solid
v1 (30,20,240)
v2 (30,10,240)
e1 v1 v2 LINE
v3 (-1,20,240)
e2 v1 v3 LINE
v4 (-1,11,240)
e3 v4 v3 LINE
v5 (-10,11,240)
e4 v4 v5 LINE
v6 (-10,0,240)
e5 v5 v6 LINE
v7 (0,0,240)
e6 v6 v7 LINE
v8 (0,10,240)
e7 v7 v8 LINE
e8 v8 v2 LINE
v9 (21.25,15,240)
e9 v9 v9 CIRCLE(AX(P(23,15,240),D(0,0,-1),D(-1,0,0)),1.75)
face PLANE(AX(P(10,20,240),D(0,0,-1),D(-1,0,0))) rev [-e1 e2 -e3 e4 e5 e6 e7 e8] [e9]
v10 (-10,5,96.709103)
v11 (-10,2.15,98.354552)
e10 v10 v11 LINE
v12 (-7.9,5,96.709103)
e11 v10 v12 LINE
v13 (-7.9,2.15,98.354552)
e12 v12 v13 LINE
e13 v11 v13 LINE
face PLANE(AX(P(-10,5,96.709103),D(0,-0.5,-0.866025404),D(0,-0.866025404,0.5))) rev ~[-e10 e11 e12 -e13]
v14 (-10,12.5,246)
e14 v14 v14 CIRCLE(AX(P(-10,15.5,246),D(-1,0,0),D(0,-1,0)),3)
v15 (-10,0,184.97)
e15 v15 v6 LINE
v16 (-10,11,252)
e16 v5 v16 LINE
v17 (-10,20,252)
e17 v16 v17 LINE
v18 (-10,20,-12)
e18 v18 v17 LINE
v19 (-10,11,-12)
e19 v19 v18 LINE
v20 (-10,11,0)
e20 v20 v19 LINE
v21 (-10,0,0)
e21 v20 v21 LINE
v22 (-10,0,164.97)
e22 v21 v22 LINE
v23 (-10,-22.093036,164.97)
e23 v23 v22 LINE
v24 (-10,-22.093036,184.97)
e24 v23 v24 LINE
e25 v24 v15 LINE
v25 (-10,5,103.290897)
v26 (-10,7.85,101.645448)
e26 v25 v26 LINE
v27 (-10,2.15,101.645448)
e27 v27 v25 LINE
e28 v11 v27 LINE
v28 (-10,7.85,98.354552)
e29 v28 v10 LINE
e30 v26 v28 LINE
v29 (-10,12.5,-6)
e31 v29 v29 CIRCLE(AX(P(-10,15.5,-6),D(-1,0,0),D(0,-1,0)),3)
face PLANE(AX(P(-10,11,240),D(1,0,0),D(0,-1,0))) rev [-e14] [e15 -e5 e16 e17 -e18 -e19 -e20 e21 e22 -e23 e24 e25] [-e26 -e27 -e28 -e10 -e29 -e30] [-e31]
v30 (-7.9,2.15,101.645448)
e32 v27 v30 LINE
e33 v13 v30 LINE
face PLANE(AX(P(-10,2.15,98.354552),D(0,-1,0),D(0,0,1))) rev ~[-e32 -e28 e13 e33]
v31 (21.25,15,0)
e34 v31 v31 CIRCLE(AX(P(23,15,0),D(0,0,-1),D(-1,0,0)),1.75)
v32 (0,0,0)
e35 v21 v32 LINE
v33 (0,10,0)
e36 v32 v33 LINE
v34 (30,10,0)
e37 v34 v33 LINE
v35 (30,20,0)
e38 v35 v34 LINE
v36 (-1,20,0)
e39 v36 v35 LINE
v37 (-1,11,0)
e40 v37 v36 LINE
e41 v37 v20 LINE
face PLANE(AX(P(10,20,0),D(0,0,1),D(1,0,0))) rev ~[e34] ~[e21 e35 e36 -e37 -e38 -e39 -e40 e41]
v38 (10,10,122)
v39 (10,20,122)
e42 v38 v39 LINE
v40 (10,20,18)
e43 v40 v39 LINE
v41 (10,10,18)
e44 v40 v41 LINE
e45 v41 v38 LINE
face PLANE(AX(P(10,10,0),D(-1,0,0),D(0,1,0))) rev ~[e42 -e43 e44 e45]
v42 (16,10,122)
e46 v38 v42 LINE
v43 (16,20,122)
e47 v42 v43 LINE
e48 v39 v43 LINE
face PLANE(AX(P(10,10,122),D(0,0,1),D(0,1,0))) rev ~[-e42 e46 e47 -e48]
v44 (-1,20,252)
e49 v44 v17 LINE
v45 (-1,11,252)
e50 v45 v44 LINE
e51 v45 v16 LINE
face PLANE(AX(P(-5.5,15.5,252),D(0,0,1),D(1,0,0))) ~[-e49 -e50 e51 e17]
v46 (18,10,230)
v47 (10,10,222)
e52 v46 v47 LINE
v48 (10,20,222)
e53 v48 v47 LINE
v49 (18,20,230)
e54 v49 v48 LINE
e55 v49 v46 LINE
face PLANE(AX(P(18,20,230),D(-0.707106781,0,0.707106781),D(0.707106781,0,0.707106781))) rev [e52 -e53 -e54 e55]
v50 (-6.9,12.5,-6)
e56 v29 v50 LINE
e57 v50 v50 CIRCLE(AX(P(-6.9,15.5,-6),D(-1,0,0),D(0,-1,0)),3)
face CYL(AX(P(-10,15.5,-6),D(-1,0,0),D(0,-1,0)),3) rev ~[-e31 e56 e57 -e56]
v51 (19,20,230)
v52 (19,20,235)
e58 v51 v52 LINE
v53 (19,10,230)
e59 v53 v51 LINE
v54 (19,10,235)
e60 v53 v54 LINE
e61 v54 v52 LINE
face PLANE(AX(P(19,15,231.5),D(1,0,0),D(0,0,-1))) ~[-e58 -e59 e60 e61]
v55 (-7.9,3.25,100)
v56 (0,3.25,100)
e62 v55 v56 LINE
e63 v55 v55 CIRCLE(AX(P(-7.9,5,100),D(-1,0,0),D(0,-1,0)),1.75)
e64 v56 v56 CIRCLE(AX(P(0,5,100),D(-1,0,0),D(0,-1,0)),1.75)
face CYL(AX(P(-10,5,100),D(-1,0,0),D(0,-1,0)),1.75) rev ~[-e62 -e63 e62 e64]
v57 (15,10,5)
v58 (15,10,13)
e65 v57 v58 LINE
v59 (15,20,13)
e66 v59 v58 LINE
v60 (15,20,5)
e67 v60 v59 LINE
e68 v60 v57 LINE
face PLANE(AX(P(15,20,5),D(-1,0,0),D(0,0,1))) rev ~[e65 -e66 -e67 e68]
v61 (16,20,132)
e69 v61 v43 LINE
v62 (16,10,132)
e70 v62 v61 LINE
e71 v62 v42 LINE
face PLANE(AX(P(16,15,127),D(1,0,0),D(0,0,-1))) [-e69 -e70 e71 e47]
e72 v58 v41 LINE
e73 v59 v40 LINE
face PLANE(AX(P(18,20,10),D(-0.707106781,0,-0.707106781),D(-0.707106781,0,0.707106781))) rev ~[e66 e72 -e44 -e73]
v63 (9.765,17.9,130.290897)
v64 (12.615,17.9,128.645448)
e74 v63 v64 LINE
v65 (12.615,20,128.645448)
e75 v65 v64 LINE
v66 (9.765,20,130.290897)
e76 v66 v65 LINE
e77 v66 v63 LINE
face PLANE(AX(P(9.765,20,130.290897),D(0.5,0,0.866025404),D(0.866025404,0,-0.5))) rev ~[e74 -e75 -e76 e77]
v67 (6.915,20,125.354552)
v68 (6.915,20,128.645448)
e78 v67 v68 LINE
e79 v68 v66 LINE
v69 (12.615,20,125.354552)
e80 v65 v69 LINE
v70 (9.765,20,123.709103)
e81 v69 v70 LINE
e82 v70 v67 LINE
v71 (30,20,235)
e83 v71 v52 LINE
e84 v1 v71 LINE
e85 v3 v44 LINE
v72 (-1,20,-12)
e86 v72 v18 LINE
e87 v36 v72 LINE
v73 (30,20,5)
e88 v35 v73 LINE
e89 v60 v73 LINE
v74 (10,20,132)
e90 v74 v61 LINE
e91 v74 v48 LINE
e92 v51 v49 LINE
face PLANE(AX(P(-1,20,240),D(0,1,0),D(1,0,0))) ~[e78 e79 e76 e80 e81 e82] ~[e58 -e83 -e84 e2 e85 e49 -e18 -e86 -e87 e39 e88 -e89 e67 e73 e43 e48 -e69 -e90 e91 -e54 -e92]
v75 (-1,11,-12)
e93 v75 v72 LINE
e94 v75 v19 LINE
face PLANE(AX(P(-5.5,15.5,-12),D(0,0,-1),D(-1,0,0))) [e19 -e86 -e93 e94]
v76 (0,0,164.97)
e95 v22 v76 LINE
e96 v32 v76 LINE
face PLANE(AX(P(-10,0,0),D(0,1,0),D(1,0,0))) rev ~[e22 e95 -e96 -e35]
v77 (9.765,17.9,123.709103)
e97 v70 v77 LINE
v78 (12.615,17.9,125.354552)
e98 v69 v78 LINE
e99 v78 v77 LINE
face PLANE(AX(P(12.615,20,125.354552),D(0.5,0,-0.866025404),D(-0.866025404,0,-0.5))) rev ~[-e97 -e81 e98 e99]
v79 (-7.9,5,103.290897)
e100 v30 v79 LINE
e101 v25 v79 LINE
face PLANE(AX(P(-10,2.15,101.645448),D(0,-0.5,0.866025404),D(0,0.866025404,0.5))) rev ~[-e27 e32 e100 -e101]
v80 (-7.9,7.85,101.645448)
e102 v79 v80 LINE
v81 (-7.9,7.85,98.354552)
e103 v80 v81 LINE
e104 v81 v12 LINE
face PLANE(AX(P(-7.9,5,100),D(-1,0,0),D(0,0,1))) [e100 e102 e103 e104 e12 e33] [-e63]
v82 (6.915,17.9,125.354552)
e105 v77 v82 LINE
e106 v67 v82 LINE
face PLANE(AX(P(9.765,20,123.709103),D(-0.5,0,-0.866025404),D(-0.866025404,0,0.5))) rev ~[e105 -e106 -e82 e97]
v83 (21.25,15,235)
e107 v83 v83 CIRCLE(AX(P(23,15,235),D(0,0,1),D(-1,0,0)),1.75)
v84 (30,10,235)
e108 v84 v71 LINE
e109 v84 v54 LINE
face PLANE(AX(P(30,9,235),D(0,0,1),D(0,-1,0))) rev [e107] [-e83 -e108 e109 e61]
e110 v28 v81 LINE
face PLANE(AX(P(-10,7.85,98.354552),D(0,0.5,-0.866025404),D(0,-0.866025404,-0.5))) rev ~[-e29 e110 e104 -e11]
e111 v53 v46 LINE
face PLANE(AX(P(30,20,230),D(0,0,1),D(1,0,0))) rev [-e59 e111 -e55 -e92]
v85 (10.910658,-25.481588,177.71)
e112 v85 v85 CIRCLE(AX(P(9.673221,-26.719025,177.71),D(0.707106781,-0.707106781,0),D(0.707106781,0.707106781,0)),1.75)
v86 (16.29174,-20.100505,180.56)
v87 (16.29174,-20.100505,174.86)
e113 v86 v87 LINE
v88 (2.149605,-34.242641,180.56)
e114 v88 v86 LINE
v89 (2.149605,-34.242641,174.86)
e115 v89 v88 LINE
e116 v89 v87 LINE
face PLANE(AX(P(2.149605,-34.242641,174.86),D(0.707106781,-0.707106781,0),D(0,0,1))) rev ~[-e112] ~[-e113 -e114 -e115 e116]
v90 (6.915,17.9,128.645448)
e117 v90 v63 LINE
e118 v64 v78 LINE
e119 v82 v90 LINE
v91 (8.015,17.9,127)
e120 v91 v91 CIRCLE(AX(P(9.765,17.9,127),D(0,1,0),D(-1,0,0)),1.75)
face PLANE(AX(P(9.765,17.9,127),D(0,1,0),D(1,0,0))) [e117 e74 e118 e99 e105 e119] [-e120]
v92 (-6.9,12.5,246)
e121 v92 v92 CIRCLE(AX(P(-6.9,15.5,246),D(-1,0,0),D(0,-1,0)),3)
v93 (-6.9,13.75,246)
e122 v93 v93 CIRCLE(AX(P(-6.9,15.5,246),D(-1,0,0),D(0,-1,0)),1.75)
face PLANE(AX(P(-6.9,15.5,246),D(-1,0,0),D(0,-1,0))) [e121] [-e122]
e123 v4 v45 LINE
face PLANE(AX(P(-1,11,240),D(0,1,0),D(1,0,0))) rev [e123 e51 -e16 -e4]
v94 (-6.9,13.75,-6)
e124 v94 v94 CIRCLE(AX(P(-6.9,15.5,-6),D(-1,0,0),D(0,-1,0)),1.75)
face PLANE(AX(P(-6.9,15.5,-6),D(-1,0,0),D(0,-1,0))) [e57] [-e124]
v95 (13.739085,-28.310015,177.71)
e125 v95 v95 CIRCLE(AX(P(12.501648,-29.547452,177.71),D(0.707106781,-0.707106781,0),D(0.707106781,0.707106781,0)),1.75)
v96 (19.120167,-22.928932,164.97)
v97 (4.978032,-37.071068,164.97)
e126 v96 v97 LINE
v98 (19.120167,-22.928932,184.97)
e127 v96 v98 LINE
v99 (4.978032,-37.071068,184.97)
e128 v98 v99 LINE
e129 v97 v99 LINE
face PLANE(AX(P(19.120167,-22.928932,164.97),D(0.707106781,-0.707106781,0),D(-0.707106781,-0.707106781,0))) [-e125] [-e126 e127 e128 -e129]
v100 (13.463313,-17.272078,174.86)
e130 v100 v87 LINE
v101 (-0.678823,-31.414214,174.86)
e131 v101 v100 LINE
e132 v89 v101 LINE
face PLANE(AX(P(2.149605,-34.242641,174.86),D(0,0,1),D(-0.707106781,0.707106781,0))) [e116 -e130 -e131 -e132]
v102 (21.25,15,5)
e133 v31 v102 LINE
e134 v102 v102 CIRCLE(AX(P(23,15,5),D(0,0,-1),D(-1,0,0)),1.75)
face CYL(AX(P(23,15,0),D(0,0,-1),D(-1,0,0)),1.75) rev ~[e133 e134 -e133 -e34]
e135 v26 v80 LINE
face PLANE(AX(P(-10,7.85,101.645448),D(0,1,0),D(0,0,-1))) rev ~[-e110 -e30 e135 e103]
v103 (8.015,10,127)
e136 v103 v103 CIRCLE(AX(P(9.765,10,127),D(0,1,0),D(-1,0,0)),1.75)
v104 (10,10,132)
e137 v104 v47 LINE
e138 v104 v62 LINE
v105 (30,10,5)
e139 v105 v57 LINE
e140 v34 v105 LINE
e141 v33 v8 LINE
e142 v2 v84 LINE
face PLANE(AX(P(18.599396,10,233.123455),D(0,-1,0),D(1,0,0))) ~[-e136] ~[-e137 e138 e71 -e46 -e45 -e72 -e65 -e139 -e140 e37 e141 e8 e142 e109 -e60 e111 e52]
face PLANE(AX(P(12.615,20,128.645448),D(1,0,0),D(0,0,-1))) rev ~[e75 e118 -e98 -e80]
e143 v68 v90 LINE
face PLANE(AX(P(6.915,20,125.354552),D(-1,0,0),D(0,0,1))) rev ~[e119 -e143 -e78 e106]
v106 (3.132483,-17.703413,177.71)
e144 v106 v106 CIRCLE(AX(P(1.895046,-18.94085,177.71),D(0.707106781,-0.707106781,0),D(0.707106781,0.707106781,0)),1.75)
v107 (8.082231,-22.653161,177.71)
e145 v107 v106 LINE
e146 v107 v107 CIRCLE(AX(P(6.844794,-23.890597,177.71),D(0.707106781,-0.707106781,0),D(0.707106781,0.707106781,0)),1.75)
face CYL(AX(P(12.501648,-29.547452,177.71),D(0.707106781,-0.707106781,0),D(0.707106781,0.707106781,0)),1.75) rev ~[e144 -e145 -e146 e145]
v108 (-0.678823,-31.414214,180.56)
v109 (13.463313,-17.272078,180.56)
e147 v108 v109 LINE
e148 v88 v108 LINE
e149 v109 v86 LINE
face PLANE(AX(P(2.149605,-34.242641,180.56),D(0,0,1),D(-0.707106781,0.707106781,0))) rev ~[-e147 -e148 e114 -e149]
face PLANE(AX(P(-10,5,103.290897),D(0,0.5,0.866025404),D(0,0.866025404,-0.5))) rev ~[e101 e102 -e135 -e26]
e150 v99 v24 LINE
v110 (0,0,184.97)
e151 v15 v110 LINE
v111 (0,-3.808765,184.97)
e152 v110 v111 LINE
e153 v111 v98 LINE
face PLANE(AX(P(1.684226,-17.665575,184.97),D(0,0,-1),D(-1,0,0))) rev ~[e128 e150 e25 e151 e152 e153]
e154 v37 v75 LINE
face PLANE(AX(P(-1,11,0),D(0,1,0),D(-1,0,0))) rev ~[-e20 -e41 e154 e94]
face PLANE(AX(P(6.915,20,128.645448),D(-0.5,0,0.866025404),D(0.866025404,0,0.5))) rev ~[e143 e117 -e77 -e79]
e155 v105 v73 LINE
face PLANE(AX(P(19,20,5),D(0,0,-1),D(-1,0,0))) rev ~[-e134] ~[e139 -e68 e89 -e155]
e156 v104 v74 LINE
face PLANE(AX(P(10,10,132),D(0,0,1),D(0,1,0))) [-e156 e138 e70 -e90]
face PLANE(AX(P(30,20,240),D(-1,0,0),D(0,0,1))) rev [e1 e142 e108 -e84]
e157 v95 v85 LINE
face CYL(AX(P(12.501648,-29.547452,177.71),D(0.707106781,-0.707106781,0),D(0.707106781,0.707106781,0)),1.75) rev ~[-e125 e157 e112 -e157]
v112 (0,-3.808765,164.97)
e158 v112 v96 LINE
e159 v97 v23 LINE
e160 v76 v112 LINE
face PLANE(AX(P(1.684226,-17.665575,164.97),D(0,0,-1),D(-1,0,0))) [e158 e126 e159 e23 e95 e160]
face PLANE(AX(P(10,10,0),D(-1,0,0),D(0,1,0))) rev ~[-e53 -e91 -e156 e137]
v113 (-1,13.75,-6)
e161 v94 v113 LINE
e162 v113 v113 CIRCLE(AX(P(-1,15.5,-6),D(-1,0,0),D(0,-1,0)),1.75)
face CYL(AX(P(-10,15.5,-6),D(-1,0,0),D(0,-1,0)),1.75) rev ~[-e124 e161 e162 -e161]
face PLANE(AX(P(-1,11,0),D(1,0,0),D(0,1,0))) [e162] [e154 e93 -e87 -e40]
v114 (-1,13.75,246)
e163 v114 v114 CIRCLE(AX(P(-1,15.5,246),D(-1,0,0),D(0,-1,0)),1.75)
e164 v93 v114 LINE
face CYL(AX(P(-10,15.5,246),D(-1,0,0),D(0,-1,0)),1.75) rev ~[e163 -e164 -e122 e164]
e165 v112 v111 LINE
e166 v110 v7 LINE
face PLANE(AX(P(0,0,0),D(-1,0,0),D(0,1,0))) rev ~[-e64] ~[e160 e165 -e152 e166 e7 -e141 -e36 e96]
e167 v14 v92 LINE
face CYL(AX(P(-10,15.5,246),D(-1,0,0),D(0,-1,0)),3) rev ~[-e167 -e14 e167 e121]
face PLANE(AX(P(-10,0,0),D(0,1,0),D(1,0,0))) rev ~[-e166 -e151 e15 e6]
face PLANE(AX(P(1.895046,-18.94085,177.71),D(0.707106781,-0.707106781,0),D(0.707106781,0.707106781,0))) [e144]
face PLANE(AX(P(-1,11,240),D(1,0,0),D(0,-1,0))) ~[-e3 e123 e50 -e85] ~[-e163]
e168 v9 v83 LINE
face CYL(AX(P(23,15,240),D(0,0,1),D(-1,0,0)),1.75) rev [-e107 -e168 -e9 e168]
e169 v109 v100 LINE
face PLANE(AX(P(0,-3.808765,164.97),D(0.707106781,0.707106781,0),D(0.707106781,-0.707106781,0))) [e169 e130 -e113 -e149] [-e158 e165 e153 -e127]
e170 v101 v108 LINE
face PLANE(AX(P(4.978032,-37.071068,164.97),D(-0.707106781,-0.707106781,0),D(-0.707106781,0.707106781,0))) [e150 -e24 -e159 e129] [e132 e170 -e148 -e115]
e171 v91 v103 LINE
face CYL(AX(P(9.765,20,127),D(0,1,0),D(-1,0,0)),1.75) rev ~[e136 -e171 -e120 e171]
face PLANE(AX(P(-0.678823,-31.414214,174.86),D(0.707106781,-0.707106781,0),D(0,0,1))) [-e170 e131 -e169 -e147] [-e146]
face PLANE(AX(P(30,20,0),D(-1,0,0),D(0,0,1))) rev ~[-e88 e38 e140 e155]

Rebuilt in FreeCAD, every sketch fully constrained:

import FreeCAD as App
import Part
import Sketcher
Q = App.Units.Quantity

doc = App.newDocument("Part")
body = doc.addObject("PartDesign::Body", "Body")

# Sketch on XY plane
sketch1 = body.newObject("Sketcher::SketchObject", "Sketch")
sketch1.AttachmentSupport = (doc.getObject("XY_Plane"), [""])
sketch1.MapMode = "FlatFace"
sketch1.addGeometry(Part.LineSegment(App.Vector(-10, 0, 0), App.Vector(0, 0, 0)), False)
sketch1.addGeometry(Part.LineSegment(App.Vector(0, 0, 0), App.Vector(0, 10, 0)), False)
sketch1.addGeometry(Part.LineSegment(App.Vector(0, 10, 0), App.Vector(10, 10, 0)), False)
sketch1.addGeometry(Part.LineSegment(App.Vector(10, 10, 0), App.Vector(10, 20, 0)), False)
sketch1.addGeometry(Part.LineSegment(App.Vector(10, 20, 0), App.Vector(-10, 20, 0)), False)
sketch1.addGeometry(Part.LineSegment(App.Vector(-10, 20, 0), App.Vector(-10, 0, 0)), False)
sketch1.addConstraint(Sketcher.Constraint("Coincident", 0, 2, 1, 1))
sketch1.addConstraint(Sketcher.Constraint("Coincident", 1, 2, 2, 1))
sketch1.addConstraint(Sketcher.Constraint("Coincident", 2, 2, 3, 1))
sketch1.addConstraint(Sketcher.Constraint("Coincident", 3, 2, 4, 1))
sketch1.addConstraint(Sketcher.Constraint("Coincident", 4, 2, 5, 1))
sketch1.addConstraint(Sketcher.Constraint("Coincident", 5, 2, 0, 1))
sketch1.addConstraint(Sketcher.Constraint("Horizontal", 0))
sketch1.addConstraint(Sketcher.Constraint("Vertical", 1))
sketch1.addConstraint(Sketcher.Constraint("Horizontal", 2))
sketch1.addConstraint(Sketcher.Constraint("Vertical", 3))
sketch1.addConstraint(Sketcher.Constraint("Horizontal", 4))
sketch1.addConstraint(Sketcher.Constraint("Vertical", 5))
sketch1.addConstraint(Sketcher.Constraint("Coincident", 0, 2, -1, 1))
sketch1.addConstraint(Sketcher.Constraint("Equal", 0, 2))
sketch1.addConstraint(Sketcher.Constraint("Equal", 2, 1))
sketch1.addConstraint(Sketcher.Constraint("Equal", 1, 3))
sketch1.addConstraint(Sketcher.Constraint("DistanceX", 0, 1, 0, 2, 10.0))
pad1 = body.newObject("PartDesign::Pad", "Pad")
pad1.Profile = sketch1
pad1.Length = 240

# Sketch on XZ plane
sketch2 = body.newObject("Sketcher::SketchObject", "Sketch001")
sketch2.AttachmentSupport = (doc.getObject("XZ_Plane"), [""])
sketch2.MapMode = "FlatFace"
sketch2.AttachmentOffset = App.Placement(App.Vector(0, 0, -20), App.Rotation())
sketch2.addGeometry(Part.LineSegment(App.Vector(30, 0, 0), App.Vector(10, 0, 0)), False)
sketch2.addGeometry(Part.LineSegment(App.Vector(10, 0, 0), App.Vector(10, 18, 0)), False)
sketch2.addGeometry(Part.LineSegment(App.Vector(10, 18, 0), App.Vector(18, 10, 0)), False)
sketch2.addGeometry(Part.LineSegment(App.Vector(18, 10, 0), App.Vector(30, 10, 0)), False)
sketch2.addGeometry(Part.LineSegment(App.Vector(30, 10, 0), App.Vector(30, 0, 0)), False)
sketch2.addConstraint(Sketcher.Constraint("Coincident", 0, 2, 1, 1))
sketch2.addConstraint(Sketcher.Constraint("Coincident", 1, 2, 2, 1))
sketch2.addConstraint(Sketcher.Constraint("Coincident", 2, 2, 3, 1))
sketch2.addConstraint(Sketcher.Constraint("Coincident", 3, 2, 4, 1))
sketch2.addConstraint(Sketcher.Constraint("Coincident", 4, 2, 0, 1))
sketch2.addConstraint(Sketcher.Constraint("Horizontal", 0))
sketch2.addConstraint(Sketcher.Constraint("Vertical", 1))
sketch2.addConstraint(Sketcher.Constraint("Horizontal", 3))
sketch2.addConstraint(Sketcher.Constraint("Vertical", 4))
sketch2.addConstraint(Sketcher.Constraint("PointOnObject", 0, 2, -1))
sketch2.addConstraint(Sketcher.Constraint("DistanceX", 0, 2, 0, 1, 20.0))
sketch2.addConstraint(Sketcher.Constraint("DistanceX", 3, 1, 3, 2, 12.0))
sketch2.addConstraint(Sketcher.Constraint("DistanceY", 1, 1, 1, 2, 18.0))
sketch2.addConstraint(Sketcher.Constraint("DistanceY", 4, 2, 4, 1, 10.0))
sketch2.addConstraint(Sketcher.Constraint("DistanceX", -1, 1, 0, 2, 10.0))
pad2 = body.newObject("PartDesign::Pad", "Pad001")
pad2.Profile = sketch2
pad2.Length = 10

# Sketch on XY plane
sketch3 = body.newObject("Sketcher::SketchObject", "Sketch002")
sketch3.AttachmentSupport = (doc.getObject("XY_Plane"), [""])
sketch3.MapMode = "FlatFace"
sketch3.addGeometry(Part.Circle(App.Vector(23, 15, 0), App.Vector(0, 0, 1), 1.8), False)
sketch3.addConstraint(Sketcher.Constraint("Diameter", 0, 3.5))
sketch3.addConstraint(Sketcher.Constraint("DistanceX", -1, 1, 0, 3, 23.0))
sketch3.addConstraint(Sketcher.Constraint("DistanceY", -1, 1, 0, 3, 15.0))
pocket1 = body.newObject("PartDesign::Pocket", "Pocket")
pocket1.Profile = sketch3
pocket1.Type = "ThroughAll"
pocket1.Reversed = True

# Sketch on YZ plane
sketch4 = body.newObject("Sketcher::SketchObject", "Sketch003")
sketch4.AttachmentSupport = (doc.getObject("YZ_Plane"), [""])
sketch4.MapMode = "FlatFace"
sketch4.AttachmentOffset = App.Placement(App.Vector(0, 0, 30), App.Rotation())
sketch4.addGeometry(Part.LineSegment(App.Vector(21, 12, 0), App.Vector(9, 12, 0)), False)
sketch4.addGeometry(Part.LineSegment(App.Vector(9, 12, 0), App.Vector(9, 5, 0)), False)
sketch4.addGeometry(Part.LineSegment(App.Vector(9, 5, 0), App.Vector(21, 5, 0)), False)
sketch4.addGeometry(Part.LineSegment(App.Vector(21, 5, 0), App.Vector(21, 12, 0)), False)
sketch4.addConstraint(Sketcher.Constraint("Coincident", 0, 2, 1, 1))
sketch4.addConstraint(Sketcher.Constraint("Coincident", 1, 2, 2, 1))
sketch4.addConstraint(Sketcher.Constraint("Coincident", 2, 2, 3, 1))
sketch4.addConstraint(Sketcher.Constraint("Coincident", 3, 2, 0, 1))
sketch4.addConstraint(Sketcher.Constraint("Horizontal", 0))
sketch4.addConstraint(Sketcher.Constraint("Vertical", 1))
sketch4.addConstraint(Sketcher.Constraint("Horizontal", 2))
sketch4.addConstraint(Sketcher.Constraint("Vertical", 3))
sketch4.addConstraint(Sketcher.Constraint("DistanceX", 0, 2, 0, 1, 12.0))
sketch4.addConstraint(Sketcher.Constraint("DistanceY", 1, 2, 1, 1, 7.0))
sketch4.addConstraint(Sketcher.Constraint("DistanceX", -1, 1, 0, 2, 9.0))
sketch4.addConstraint(Sketcher.Constraint("DistanceY", -1, 1, 0, 2, 12.0))
pocket2 = body.newObject("PartDesign::Pocket", "Pocket001")
pocket2.Profile = sketch4
pocket2.Length = 11
doc.recompute()

datumplane = body.newObject("PartDesign::Plane", "DatumPlane")
datumplane.AttachmentSupport = (doc.getObject("XY_Plane"), [""])
datumplane.MapMode = "FlatFace"
datumplane.AttachmentOffset = App.Placement(App.Vector(0, 0, 120), App.Rotation())
mirrored = body.newObject("PartDesign::Mirrored", "Mirrored")
mirrored.Originals = [pad2, pocket1, pocket2]
mirrored.MirrorPlane = (datumplane, [""])
body.Tip = mirrored

# Sketch on XY plane
sketch5 = body.newObject("Sketcher::SketchObject", "Sketch004")
sketch5.AttachmentSupport = (doc.getObject("XY_Plane"), [""])
sketch5.MapMode = "FlatFace"
sketch5.AttachmentOffset = App.Placement(App.Vector(0, 0, 174.97), App.Rotation())
sketch5.addGeometry(Part.LineSegment(App.Vector(0, -3.8, 0), App.Vector(0, 0, 0)), False)
sketch5.addGeometry(Part.LineSegment(App.Vector(0, 0, 0), App.Vector(-10, 0, 0)), False)
sketch5.addGeometry(Part.LineSegment(App.Vector(-10, 0, 0), App.Vector(-10, -22.1, 0)), False)
sketch5.addGeometry(Part.LineSegment(App.Vector(-10, -22.1, 0), App.Vector(5, -37.1, 0)), False)
sketch5.addGeometry(Part.LineSegment(App.Vector(5, -37.1, 0), App.Vector(19.1, -22.9, 0)), False)
sketch5.addGeometry(Part.LineSegment(App.Vector(19.1, -22.9, 0), App.Vector(0, -3.8, 0)), False)
sketch5.addConstraint(Sketcher.Constraint("Coincident", 0, 2, 1, 1))
sketch5.addConstraint(Sketcher.Constraint("Coincident", 1, 2, 2, 1))
sketch5.addConstraint(Sketcher.Constraint("Coincident", 2, 2, 3, 1))
sketch5.addConstraint(Sketcher.Constraint("Coincident", 3, 2, 4, 1))
sketch5.addConstraint(Sketcher.Constraint("Coincident", 4, 2, 5, 1))
sketch5.addConstraint(Sketcher.Constraint("Coincident", 5, 2, 0, 1))
sketch5.addConstraint(Sketcher.Constraint("Vertical", 0))
sketch5.addConstraint(Sketcher.Constraint("Horizontal", 1))
sketch5.addConstraint(Sketcher.Constraint("Vertical", 2))
sketch5.addConstraint(Sketcher.Constraint("Coincident", 0, 2, -1, 1))
sketch5.addConstraint(Sketcher.Constraint("Perpendicular", 3, 4))
sketch5.addConstraint(Sketcher.Constraint("Perpendicular", 4, 5))
sketch5.addConstraint(Sketcher.Constraint("DistanceX", 1, 2, 1, 1, 10.0))
sketch5.addConstraint(Sketcher.Constraint("Angle", 3, Q("-45 deg")))
sketch5.addConstraint(Sketcher.Constraint("Distance", 4, 20.0))
sketch5.addConstraint(Sketcher.Constraint("Distance", 5, 27.04))
sketch5.addConstraint(Sketcher.Constraint("DistanceY", 0, 1, 0, 2, 3.808765))
pad3 = body.newObject("PartDesign::Pad", "Pad002")
pad3.Profile = sketch5
pad3.Type = "TwoLengths"
pad3.Length = 10
pad3.Length2 = 10

# Sketch on YZ plane
sketch6 = body.newObject("Sketcher::SketchObject", "Sketch005")
sketch6.AttachmentSupport = (doc.getObject("YZ_Plane"), [""])
sketch6.MapMode = "FlatFace"
sketch6.AttachmentOffset = App.Placement(App.Vector(0, 0, 10), App.Rotation())
sketch6.addGeometry(Part.LineSegment(App.Vector(20, 132, 0), App.Vector(10, 132, 0)), False)
sketch6.addGeometry(Part.LineSegment(App.Vector(10, 132, 0), App.Vector(10, 122, 0)), False)
sketch6.addGeometry(Part.LineSegment(App.Vector(10, 122, 0), App.Vector(20, 122, 0)), False)
sketch6.addGeometry(Part.LineSegment(App.Vector(20, 122, 0), App.Vector(20, 132, 0)), False)
sketch6.addConstraint(Sketcher.Constraint("Coincident", 0, 2, 1, 1))
sketch6.addConstraint(Sketcher.Constraint("Coincident", 1, 2, 2, 1))
sketch6.addConstraint(Sketcher.Constraint("Coincident", 2, 2, 3, 1))
sketch6.addConstraint(Sketcher.Constraint("Coincident", 3, 2, 0, 1))
sketch6.addConstraint(Sketcher.Constraint("Horizontal", 0))
sketch6.addConstraint(Sketcher.Constraint("Vertical", 1))
sketch6.addConstraint(Sketcher.Constraint("Horizontal", 2))
sketch6.addConstraint(Sketcher.Constraint("Vertical", 3))
sketch6.addConstraint(Sketcher.Constraint("Equal", 2, 1))
sketch6.addConstraint(Sketcher.Constraint("DistanceX", 0, 2, 0, 1, 10.0))
sketch6.addConstraint(Sketcher.Constraint("DistanceX", -1, 1, 0, 2, 10.0))
sketch6.addConstraint(Sketcher.Constraint("DistanceY", -1, 1, 0, 2, 132.0))
pad4 = body.newObject("PartDesign::Pad", "Pad003")
pad4.Profile = sketch6
pad4.Length = 6

# Sketch on XZ plane
sketch7 = body.newObject("Sketcher::SketchObject", "Sketch006")
sketch7.AttachmentSupport = (doc.getObject("XZ_Plane"), [""])
sketch7.MapMode = "FlatFace"
sketch7.AttachmentOffset = App.Placement(App.Vector(0, 0, -20), App.Rotation())
sketch7.addGeometry(Part.Circle(App.Vector(9.8, 127, 0), App.Vector(0, 0, 1), 1.8), False)
sketch7.addConstraint(Sketcher.Constraint("Diameter", 0, 3.5))
sketch7.addConstraint(Sketcher.Constraint("DistanceY", -1, 1, 0, 3, 127.0))
sketch7.addConstraint(Sketcher.Constraint("DistanceX", -1, 1, 0, 3, 9.765))
pocket3 = body.newObject("PartDesign::Pocket", "Pocket002")
pocket3.Profile = sketch7
pocket3.Length = 20
pocket3.Reversed = True

# Sketch on XY plane
sketch8 = body.newObject("Sketcher::SketchObject", "Sketch007")
sketch8.AttachmentSupport = (doc.getObject("XY_Plane"), [""])
sketch8.MapMode = "FlatFace"
sketch8.addGeometry(Part.LineSegment(App.Vector(-1, 20, 0), App.Vector(-1, 11, 0)), False)
sketch8.addGeometry(Part.LineSegment(App.Vector(-1, 11, 0), App.Vector(-10, 11, 0)), False)
sketch8.addGeometry(Part.LineSegment(App.Vector(-10, 11, 0), App.Vector(-10, 20, 0)), False)
sketch8.addGeometry(Part.LineSegment(App.Vector(-10, 20, 0), App.Vector(-1, 20, 0)), False)
sketch8.addConstraint(Sketcher.Constraint("Coincident", 0, 2, 1, 1))
sketch8.addConstraint(Sketcher.Constraint("Coincident", 1, 2, 2, 1))
sketch8.addConstraint(Sketcher.Constraint("Coincident", 2, 2, 3, 1))
sketch8.addConstraint(Sketcher.Constraint("Coincident", 3, 2, 0, 1))
sketch8.addConstraint(Sketcher.Constraint("Vertical", 0))
sketch8.addConstraint(Sketcher.Constraint("Horizontal", 1))
sketch8.addConstraint(Sketcher.Constraint("Vertical", 2))
sketch8.addConstraint(Sketcher.Constraint("Horizontal", 3))
sketch8.addConstraint(Sketcher.Constraint("Equal", 3, 0))
sketch8.addConstraint(Sketcher.Constraint("DistanceX", 1, 2, 1, 1, 9.0))
sketch8.addConstraint(Sketcher.Constraint("DistanceX", 0, 2, -1, 1, 1.0))
sketch8.addConstraint(Sketcher.Constraint("DistanceY", -1, 1, 0, 2, 11.0))
pad5 = body.newObject("PartDesign::Pad", "Pad004")
pad5.Profile = sketch8
pad5.Length = 12
pad5.Reversed = True
doc.recompute()

datumplane2 = body.newObject("PartDesign::Plane", "DatumPlane001")
datumplane2.AttachmentSupport = (doc.getObject("XY_Plane"), [""])
datumplane2.MapMode = "FlatFace"
datumplane2.AttachmentOffset = App.Placement(App.Vector(0, 0, 120), App.Rotation())
mirrored2 = body.newObject("PartDesign::Mirrored", "Mirrored001")
mirrored2.Originals = [pad5]
mirrored2.MirrorPlane = (datumplane2, [""])
body.Tip = mirrored2

# Sketch on YZ plane
sketch9 = body.newObject("Sketcher::SketchObject", "Sketch008")
sketch9.AttachmentSupport = (doc.getObject("YZ_Plane"), [""])
sketch9.MapMode = "FlatFace"
sketch9.AttachmentOffset = App.Placement(App.Vector(0, 0, -10), App.Rotation())
sketch9.addGeometry(Part.Circle(App.Vector(15.5, -6, 0), App.Vector(0, 0, 1), 1.8), False)
sketch9.addGeometry(Part.Circle(App.Vector(15.5, 246, 0), App.Vector(0, 0, 1), 1.8), False)
sketch9.addConstraint(Sketcher.Constraint("Equal", 0, 1))
sketch9.addConstraint(Sketcher.Constraint("Vertical", 0, 3, 1, 3))
sketch9.addConstraint(Sketcher.Constraint("Diameter", 0, 3.5))
sketch9.addConstraint(Sketcher.Constraint("DistanceY", 0, 3, -1, 1, 6.0))
sketch9.addConstraint(Sketcher.Constraint("DistanceY", -1, 1, 1, 3, 246.0))
sketch9.addConstraint(Sketcher.Constraint("DistanceX", -1, 1, 0, 3, 15.5))
pocket4 = body.newObject("PartDesign::Pocket", "Pocket003")
pocket4.Profile = sketch9
pocket4.Length = 9
pocket4.Reversed = True

# Sketch on XZ plane
sketch10 = body.newObject("Sketcher::SketchObject", "Sketch009")
sketch10.AttachmentSupport = (doc.getObject("XZ_Plane"), [""])
sketch10.MapMode = "FlatFace"
sketch10.AttachmentOffset = App.Placement(App.Vector(0, 0, -20), App.Rotation())
sketch10.addGeometry(Part.LineSegment(App.Vector(12.6, 128.6, 0), App.Vector(12.6, 125.4, 0)), False)
sketch10.addGeometry(Part.LineSegment(App.Vector(12.6, 125.4, 0), App.Vector(9.8, 123.7, 0)), False)
sketch10.addGeometry(Part.LineSegment(App.Vector(9.8, 123.7, 0), App.Vector(6.9, 125.4, 0)), False)
sketch10.addGeometry(Part.LineSegment(App.Vector(6.9, 125.4, 0), App.Vector(6.9, 128.6, 0)), False)
sketch10.addGeometry(Part.LineSegment(App.Vector(6.9, 128.6, 0), App.Vector(9.8, 130.3, 0)), False)
sketch10.addGeometry(Part.LineSegment(App.Vector(9.8, 130.3, 0), App.Vector(12.6, 128.6, 0)), False)
sketch10.addConstraint(Sketcher.Constraint("Coincident", 0, 2, 1, 1))
sketch10.addConstraint(Sketcher.Constraint("Coincident", 1, 2, 2, 1))
sketch10.addConstraint(Sketcher.Constraint("Coincident", 2, 2, 3, 1))
sketch10.addConstraint(Sketcher.Constraint("Coincident", 3, 2, 4, 1))
sketch10.addConstraint(Sketcher.Constraint("Coincident", 4, 2, 5, 1))
sketch10.addConstraint(Sketcher.Constraint("Coincident", 5, 2, 0, 1))
sketch10.addConstraint(Sketcher.Constraint("Vertical", 0))
sketch10.addConstraint(Sketcher.Constraint("Vertical", 3))
sketch10.addConstraint(Sketcher.Constraint("Parallel", 1, 4))
sketch10.addConstraint(Sketcher.Constraint("Parallel", 2, 5))
sketch10.addConstraint(Sketcher.Constraint("Horizontal", 0, 2, 2, 2))
sketch10.addConstraint(Sketcher.Constraint("Horizontal", 3, 2, 5, 2))
sketch10.addConstraint(Sketcher.Constraint("Vertical", 1, 2, 4, 2))
sketch10.addConstraint(Sketcher.Constraint("Angle", 1, Q("-150 deg")))
sketch10.addConstraint(Sketcher.Constraint("DistanceX", 2, 2, 0, 2, 5.7))
sketch10.addConstraint(Sketcher.Constraint("DistanceX", -1, 1, 0, 2, 12.615))
sketch10.addConstraint(Sketcher.Constraint("DistanceY", 0, 2, 0, 1, 3.290897))
sketch10.addConstraint(Sketcher.Constraint("DistanceY", -1, 1, 0, 2, 125.354552))
pocket5 = body.newObject("PartDesign::Pocket", "Pocket004")
pocket5.Profile = sketch10
pocket5.Length = 2.1
pocket5.Reversed = True

# Sketch on YZ plane
sketch11 = body.newObject("Sketcher::SketchObject", "Sketch010")
sketch11.AttachmentSupport = (doc.getObject("YZ_Plane"), [""])
sketch11.MapMode = "FlatFace"
sketch11.AttachmentOffset = App.Placement(App.Vector(0, 0, -10), App.Rotation())
sketch11.addGeometry(Part.Circle(App.Vector(15.5, 246, 0), App.Vector(0, 0, 1), 3), False)
sketch11.addGeometry(Part.Circle(App.Vector(15.5, -6, 0), App.Vector(0, 0, 1), 3), False)
sketch11.addConstraint(Sketcher.Constraint("Equal", 0, 1))
sketch11.addConstraint(Sketcher.Constraint("Vertical", 0, 3, 1, 3))
sketch11.addConstraint(Sketcher.Constraint("Diameter", 0, 6.0))
sketch11.addConstraint(Sketcher.Constraint("DistanceY", -1, 1, 0, 3, 246.0))
sketch11.addConstraint(Sketcher.Constraint("DistanceY", 1, 3, -1, 1, 6.0))
sketch11.addConstraint(Sketcher.Constraint("DistanceX", -1, 1, 0, 3, 15.5))
pocket6 = body.newObject("PartDesign::Pocket", "Pocket005")
pocket6.Profile = sketch11
pocket6.Length = 3.1
pocket6.Reversed = True

# Sketch on YZ plane
sketch12 = body.newObject("Sketcher::SketchObject", "Sketch011")
sketch12.AttachmentSupport = (doc.getObject("YZ_Plane"), [""])
sketch12.MapMode = "FlatFace"
sketch12.AttachmentOffset = App.Placement(App.Vector(0, 0, -10), App.Rotation())
sketch12.addGeometry(Part.Circle(App.Vector(5, 100, 0), App.Vector(0, 0, 1), 1.8), False)
sketch12.addConstraint(Sketcher.Constraint("Diameter", 0, 3.5))
sketch12.addConstraint(Sketcher.Constraint("DistanceX", -1, 1, 0, 3, 5.0))
sketch12.addConstraint(Sketcher.Constraint("DistanceY", -1, 1, 0, 3, 100.0))
pocket7 = body.newObject("PartDesign::Pocket", "Pocket006")
pocket7.Profile = sketch12
pocket7.Length = 10
pocket7.Reversed = True

# Sketch on YZ plane
sketch13 = body.newObject("Sketcher::SketchObject", "Sketch012")
sketch13.AttachmentSupport = (doc.getObject("YZ_Plane"), [""])
sketch13.MapMode = "FlatFace"
sketch13.AttachmentOffset = App.Placement(App.Vector(0, 0, -10), App.Rotation())
sketch13.addGeometry(Part.LineSegment(App.Vector(2.1, 101.6, 0), App.Vector(5, 103.3, 0)), False)
sketch13.addGeometry(Part.LineSegment(App.Vector(5, 103.3, 0), App.Vector(7.8, 101.6, 0)), False)
sketch13.addGeometry(Part.LineSegment(App.Vector(7.8, 101.6, 0), App.Vector(7.8, 98.4, 0)), False)
sketch13.addGeometry(Part.LineSegment(App.Vector(7.8, 98.4, 0), App.Vector(5, 96.7, 0)), False)
sketch13.addGeometry(Part.LineSegment(App.Vector(5, 96.7, 0), App.Vector(2.1, 98.4, 0)), False)
sketch13.addGeometry(Part.LineSegment(App.Vector(2.1, 98.4, 0), App.Vector(2.1, 101.6, 0)), False)
sketch13.addConstraint(Sketcher.Constraint("Coincident", 0, 2, 1, 1))
sketch13.addConstraint(Sketcher.Constraint("Coincident", 1, 2, 2, 1))
sketch13.addConstraint(Sketcher.Constraint("Coincident", 2, 2, 3, 1))
sketch13.addConstraint(Sketcher.Constraint("Coincident", 3, 2, 4, 1))
sketch13.addConstraint(Sketcher.Constraint("Coincident", 4, 2, 5, 1))
sketch13.addConstraint(Sketcher.Constraint("Coincident", 5, 2, 0, 1))
sketch13.addConstraint(Sketcher.Constraint("Vertical", 2))
sketch13.addConstraint(Sketcher.Constraint("Vertical", 5))
sketch13.addConstraint(Sketcher.Constraint("Parallel", 0, 3))
sketch13.addConstraint(Sketcher.Constraint("Parallel", 1, 4))
sketch13.addConstraint(Sketcher.Constraint("Horizontal", 2, 2, 4, 2))
sketch13.addConstraint(Sketcher.Constraint("Horizontal", 1, 2, 5, 2))
sketch13.addConstraint(Sketcher.Constraint("Vertical", 0, 2, 3, 2))
sketch13.addConstraint(Sketcher.Constraint("Angle", 0, Q("30 deg")))
sketch13.addConstraint(Sketcher.Constraint("DistanceX", -1, 1, 0, 2, 5.0))
sketch13.addConstraint(Sketcher.Constraint("DistanceX", 4, 2, 2, 2, 5.7))
sketch13.addConstraint(Sketcher.Constraint("DistanceY", 2, 2, 2, 1, 3.290897))
sketch13.addConstraint(Sketcher.Constraint("DistanceY", -1, 1, 1, 2, 101.645448))
pocket8 = body.newObject("PartDesign::Pocket", "Pocket007")
pocket8.Profile = sketch13
pocket8.Length = 2.1
pocket8.Reversed = True

# Sketch on an angled plane
sketch14 = body.newObject("Sketcher::SketchObject", "Sketch013")
sketch14.Placement = App.Placement(App.Vector(21.02455, -21.02455, 0), App.Rotation(App.Vector(0, 0, -1), App.Vector(0.707106781, 0.707106781, 0), App.Vector(0.707106781, -0.707106781, 0), "ZXY"))
sketch14.addGeometry(Part.Circle(App.Vector(-177.7, -12.1, 0), App.Vector(0, 0, 1), 1.8), False)
sketch14.addConstraint(Sketcher.Constraint("Diameter", 0, 3.5))
sketch14.addConstraint(Sketcher.Constraint("DistanceX", 0, 3, -1, 1, 177.71))
sketch14.addConstraint(Sketcher.Constraint("DistanceY", 0, 3, -1, 1, 12.053203))
pocket9 = body.newObject("PartDesign::Pocket", "Pocket008")
pocket9.Profile = sketch14
pocket9.Length = 15

# Sketch on an angled plane
sketch15 = body.newObject("Sketcher::SketchObject", "Sketch014")
sketch15.Placement = App.Placement(App.Vector(-16.046518, -16.046518, 0), App.Rotation(App.Vector(0, 0, 1), App.Vector(-0.707106781, 0.707106781, 0), App.Vector(-0.707106781, -0.707106781, 0), "ZXY"))
sketch15.addGeometry(Part.LineSegment(App.Vector(174.9, -21.7, 0), App.Vector(174.9, -25.7, 0)), False)
sketch15.addGeometry(Part.LineSegment(App.Vector(174.9, -25.7, 0), App.Vector(180.6, -25.7, 0)), False)
sketch15.addGeometry(Part.LineSegment(App.Vector(180.6, -25.7, 0), App.Vector(180.6, -21.7, 0)), False)
sketch15.addGeometry(Part.LineSegment(App.Vector(180.6, -21.7, 0), App.Vector(174.9, -21.7, 0)), False)
sketch15.addConstraint(Sketcher.Constraint("Coincident", 0, 2, 1, 1))
sketch15.addConstraint(Sketcher.Constraint("Coincident", 1, 2, 2, 1))
sketch15.addConstraint(Sketcher.Constraint("Coincident", 2, 2, 3, 1))
sketch15.addConstraint(Sketcher.Constraint("Coincident", 3, 2, 0, 1))
sketch15.addConstraint(Sketcher.Constraint("Vertical", 0))
sketch15.addConstraint(Sketcher.Constraint("Horizontal", 1))
sketch15.addConstraint(Sketcher.Constraint("Vertical", 2))
sketch15.addConstraint(Sketcher.Constraint("Horizontal", 3))
sketch15.addConstraint(Sketcher.Constraint("DistanceY", 0, 2, 0, 1, 4.0))
sketch15.addConstraint(Sketcher.Constraint("DistanceX", 1, 1, 1, 2, 5.7))
sketch15.addConstraint(Sketcher.Constraint("DistanceX", -1, 1, 0, 2, 174.86))
sketch15.addConstraint(Sketcher.Constraint("DistanceY", 0, 2, -1, 1, 25.733203))
pocket10 = body.newObject("PartDesign::Pocket", "Pocket009")
pocket10.Profile = sketch15
pocket10.Type = "ThroughAll"

# Sketch on XZ plane
sketch16 = body.newObject("Sketcher::SketchObject", "Sketch015")
sketch16.AttachmentSupport = (doc.getObject("XZ_Plane"), [""])
sketch16.MapMode = "FlatFace"
sketch16.AttachmentOffset = App.Placement(App.Vector(0, 0, -20), App.Rotation())
sketch16.addGeometry(Part.LineSegment(App.Vector(19, 10, 0), App.Vector(19, 5, 0)), False)
sketch16.addGeometry(Part.LineSegment(App.Vector(19, 5, 0), App.Vector(15, 5, 0)), False)
sketch16.addGeometry(Part.LineSegment(App.Vector(15, 5, 0), App.Vector(15, 13, 0)), False)
sketch16.addGeometry(Part.LineSegment(App.Vector(15, 13, 0), App.Vector(18, 10, 0)), False)
sketch16.addGeometry(Part.LineSegment(App.Vector(18, 10, 0), App.Vector(19, 10, 0)), False)
sketch16.addConstraint(Sketcher.Constraint("Coincident", 0, 2, 1, 1))
sketch16.addConstraint(Sketcher.Constraint("Coincident", 1, 2, 2, 1))
sketch16.addConstraint(Sketcher.Constraint("Coincident", 2, 2, 3, 1))
sketch16.addConstraint(Sketcher.Constraint("Coincident", 3, 2, 4, 1))
sketch16.addConstraint(Sketcher.Constraint("Coincident", 4, 2, 0, 1))
sketch16.addConstraint(Sketcher.Constraint("Vertical", 0))
sketch16.addConstraint(Sketcher.Constraint("Horizontal", 1))
sketch16.addConstraint(Sketcher.Constraint("Vertical", 2))
sketch16.addConstraint(Sketcher.Constraint("Horizontal", 4))
sketch16.addConstraint(Sketcher.Constraint("DistanceX", 1, 2, 1, 1, 4.0))
sketch16.addConstraint(Sketcher.Constraint("DistanceX", 4, 1, 4, 2, 1.0))
sketch16.addConstraint(Sketcher.Constraint("DistanceY", 0, 2, 0, 1, 5.0))
sketch16.addConstraint(Sketcher.Constraint("DistanceY", 2, 1, 2, 2, 8.0))
sketch16.addConstraint(Sketcher.Constraint("DistanceX", -1, 1, 0, 2, 19.0))
sketch16.addConstraint(Sketcher.Constraint("DistanceY", -1, 1, 0, 2, 5.0))
pocket11 = body.newObject("PartDesign::Pocket", "Pocket010")
pocket11.Profile = sketch16
pocket11.Length = 10
pocket11.Reversed = True

doc.recompute()
